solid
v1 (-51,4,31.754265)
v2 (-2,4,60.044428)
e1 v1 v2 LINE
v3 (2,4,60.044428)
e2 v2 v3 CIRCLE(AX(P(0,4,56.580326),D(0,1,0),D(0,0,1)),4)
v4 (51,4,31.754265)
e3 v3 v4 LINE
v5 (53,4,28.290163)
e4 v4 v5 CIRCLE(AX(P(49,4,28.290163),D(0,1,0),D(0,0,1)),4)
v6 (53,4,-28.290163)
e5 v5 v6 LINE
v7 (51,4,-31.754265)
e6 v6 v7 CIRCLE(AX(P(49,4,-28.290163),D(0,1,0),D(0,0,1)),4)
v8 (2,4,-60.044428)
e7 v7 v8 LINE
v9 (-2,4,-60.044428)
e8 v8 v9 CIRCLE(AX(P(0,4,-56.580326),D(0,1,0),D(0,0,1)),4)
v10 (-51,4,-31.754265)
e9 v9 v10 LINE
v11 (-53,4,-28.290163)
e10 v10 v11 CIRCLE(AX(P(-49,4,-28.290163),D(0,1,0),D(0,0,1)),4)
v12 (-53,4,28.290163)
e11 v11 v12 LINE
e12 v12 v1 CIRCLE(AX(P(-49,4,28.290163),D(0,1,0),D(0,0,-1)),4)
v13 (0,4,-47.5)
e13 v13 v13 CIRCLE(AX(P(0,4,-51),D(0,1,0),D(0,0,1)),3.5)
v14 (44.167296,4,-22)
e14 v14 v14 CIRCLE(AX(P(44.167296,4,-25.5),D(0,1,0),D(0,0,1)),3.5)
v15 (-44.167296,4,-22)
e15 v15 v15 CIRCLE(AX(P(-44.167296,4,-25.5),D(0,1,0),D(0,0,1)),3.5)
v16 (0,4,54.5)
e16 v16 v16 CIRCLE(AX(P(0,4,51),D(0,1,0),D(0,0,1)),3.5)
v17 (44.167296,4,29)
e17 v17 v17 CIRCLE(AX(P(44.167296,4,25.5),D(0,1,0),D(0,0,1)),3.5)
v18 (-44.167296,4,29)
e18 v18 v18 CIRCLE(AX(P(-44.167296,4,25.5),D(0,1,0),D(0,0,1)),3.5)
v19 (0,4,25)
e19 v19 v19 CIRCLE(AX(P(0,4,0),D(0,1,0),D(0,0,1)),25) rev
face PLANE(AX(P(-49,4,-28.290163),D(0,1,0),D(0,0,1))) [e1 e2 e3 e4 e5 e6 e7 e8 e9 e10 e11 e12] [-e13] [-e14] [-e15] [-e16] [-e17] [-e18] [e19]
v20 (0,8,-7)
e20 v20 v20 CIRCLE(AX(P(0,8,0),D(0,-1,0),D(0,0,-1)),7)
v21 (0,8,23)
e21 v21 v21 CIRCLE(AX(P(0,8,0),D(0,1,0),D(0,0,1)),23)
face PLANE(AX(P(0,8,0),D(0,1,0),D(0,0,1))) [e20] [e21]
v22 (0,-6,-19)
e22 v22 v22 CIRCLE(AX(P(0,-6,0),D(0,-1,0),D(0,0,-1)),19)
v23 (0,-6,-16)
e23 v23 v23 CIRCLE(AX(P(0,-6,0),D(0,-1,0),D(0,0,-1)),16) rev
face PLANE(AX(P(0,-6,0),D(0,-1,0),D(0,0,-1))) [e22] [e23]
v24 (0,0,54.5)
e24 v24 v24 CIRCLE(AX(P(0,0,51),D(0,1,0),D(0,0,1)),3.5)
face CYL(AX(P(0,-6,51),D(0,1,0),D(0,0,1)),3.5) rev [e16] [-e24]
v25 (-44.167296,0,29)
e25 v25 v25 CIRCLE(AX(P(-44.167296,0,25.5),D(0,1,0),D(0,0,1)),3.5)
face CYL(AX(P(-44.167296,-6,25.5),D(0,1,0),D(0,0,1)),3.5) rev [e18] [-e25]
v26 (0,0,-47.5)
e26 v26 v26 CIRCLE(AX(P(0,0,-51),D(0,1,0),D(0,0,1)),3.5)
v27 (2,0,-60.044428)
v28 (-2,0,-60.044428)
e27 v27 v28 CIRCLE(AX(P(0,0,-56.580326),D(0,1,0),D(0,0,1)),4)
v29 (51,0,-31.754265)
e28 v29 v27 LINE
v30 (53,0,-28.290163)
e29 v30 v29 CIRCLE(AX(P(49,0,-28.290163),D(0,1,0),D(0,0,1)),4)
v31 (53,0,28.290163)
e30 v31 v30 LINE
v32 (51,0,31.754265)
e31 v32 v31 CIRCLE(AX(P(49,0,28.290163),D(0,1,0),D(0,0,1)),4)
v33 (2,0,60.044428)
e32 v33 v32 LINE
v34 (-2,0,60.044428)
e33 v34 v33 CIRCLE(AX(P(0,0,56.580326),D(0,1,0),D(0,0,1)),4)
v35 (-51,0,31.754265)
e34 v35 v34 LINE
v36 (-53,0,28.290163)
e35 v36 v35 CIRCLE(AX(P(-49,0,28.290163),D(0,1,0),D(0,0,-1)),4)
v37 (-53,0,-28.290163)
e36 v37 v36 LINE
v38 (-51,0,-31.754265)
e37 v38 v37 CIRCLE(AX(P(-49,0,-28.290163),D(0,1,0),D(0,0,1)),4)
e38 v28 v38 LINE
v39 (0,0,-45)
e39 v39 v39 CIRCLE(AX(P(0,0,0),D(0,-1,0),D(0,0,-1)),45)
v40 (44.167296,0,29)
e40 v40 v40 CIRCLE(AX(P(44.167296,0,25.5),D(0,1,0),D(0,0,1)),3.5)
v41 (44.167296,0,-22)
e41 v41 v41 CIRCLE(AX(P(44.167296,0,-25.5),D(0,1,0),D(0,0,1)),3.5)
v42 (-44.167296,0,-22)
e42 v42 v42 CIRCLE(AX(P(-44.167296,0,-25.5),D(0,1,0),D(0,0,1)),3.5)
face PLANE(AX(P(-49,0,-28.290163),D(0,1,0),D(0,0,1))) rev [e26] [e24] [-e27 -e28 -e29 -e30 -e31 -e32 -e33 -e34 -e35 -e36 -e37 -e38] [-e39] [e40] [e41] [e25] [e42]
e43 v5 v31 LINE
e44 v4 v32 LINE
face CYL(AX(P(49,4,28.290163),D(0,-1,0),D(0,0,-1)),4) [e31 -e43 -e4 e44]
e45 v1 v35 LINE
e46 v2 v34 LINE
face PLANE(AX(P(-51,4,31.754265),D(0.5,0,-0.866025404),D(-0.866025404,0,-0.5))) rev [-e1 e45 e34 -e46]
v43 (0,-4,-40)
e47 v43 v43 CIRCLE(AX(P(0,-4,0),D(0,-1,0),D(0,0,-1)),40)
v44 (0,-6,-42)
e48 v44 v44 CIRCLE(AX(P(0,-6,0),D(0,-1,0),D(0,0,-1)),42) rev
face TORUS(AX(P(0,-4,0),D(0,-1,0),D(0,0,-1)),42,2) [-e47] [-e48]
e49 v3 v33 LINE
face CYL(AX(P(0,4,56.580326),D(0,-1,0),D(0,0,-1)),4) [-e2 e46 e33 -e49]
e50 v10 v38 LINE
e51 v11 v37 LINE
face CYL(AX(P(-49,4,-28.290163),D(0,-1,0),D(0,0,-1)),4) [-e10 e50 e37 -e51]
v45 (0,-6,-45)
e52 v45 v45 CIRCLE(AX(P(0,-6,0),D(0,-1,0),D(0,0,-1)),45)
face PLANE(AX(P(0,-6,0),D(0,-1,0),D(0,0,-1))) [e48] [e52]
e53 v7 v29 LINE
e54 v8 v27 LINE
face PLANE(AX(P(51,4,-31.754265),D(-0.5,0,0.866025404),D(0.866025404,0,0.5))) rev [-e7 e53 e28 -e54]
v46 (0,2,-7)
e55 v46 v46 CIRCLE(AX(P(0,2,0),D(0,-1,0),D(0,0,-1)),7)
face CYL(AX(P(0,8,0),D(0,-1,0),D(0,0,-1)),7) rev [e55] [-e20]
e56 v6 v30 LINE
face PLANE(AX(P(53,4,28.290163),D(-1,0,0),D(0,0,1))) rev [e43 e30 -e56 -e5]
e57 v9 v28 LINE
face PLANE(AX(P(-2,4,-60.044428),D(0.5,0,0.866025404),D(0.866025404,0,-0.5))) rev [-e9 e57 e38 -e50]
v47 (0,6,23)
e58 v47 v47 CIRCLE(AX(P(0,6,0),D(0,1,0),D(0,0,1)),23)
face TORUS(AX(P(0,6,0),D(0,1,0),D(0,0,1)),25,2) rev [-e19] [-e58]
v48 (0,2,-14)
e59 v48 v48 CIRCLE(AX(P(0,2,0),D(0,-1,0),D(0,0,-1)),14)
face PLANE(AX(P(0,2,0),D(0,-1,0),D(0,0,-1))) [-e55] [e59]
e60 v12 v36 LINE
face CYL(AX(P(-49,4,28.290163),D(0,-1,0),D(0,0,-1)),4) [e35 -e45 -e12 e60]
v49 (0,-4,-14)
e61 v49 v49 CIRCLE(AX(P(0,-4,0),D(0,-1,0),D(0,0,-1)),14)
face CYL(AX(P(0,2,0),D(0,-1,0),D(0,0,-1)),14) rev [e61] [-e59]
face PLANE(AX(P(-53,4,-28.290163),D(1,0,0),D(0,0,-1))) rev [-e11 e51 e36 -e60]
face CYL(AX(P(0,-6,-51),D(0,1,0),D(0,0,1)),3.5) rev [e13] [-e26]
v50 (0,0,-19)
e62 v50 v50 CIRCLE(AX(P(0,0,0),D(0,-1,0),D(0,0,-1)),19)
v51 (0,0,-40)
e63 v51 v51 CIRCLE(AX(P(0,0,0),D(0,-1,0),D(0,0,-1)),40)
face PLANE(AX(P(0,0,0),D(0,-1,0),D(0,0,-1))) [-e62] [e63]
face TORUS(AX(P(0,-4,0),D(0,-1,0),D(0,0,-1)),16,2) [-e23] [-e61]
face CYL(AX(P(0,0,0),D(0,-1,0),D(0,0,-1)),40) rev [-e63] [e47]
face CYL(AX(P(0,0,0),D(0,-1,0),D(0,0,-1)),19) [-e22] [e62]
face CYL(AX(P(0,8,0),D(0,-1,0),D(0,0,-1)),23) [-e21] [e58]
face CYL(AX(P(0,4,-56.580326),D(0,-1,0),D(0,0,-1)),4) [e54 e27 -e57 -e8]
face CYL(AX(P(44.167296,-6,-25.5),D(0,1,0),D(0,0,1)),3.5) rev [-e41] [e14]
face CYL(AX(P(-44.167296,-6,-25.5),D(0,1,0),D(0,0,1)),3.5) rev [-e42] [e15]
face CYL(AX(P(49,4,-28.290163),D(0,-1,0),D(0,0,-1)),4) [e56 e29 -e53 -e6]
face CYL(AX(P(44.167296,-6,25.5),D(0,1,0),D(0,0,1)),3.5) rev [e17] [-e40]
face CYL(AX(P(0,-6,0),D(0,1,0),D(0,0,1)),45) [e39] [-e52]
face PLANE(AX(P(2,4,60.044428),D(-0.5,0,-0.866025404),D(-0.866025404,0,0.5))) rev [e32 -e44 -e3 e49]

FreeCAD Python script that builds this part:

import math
import FreeCAD as App
import Part
import Sketcher
Q = App.Units.Quantity


def edges_at(feature, points):
    """Names of the edges that pass closest to the given points."""
    edges = feature.Shape.Edges
    near = lambda p: min(range(len(edges)), key=lambda i: edges[i].distToShape(Part.Vertex(*p))[0])
    return sorted({f"Edge{near(p) + 1}" for p in points})

doc = App.newDocument("Part")
params = doc.addObject("Spreadsheet::Sheet", "Params")
for row, (alias, value) in enumerate([
    ("sketch1_radius", "4 mm"),
    ("pad1_length", "4 mm"),
    ("sketch2_diameter", "46 mm"),
    ("pad2_length", "4 mm"),
    ("sketch3_diameter", "90 mm"),
    ("pad3_length", "6 mm"),
    ("sketch4_diameter", "80 mm"),
    ("sketch4_diameter2", "38 mm"),
    ("pocket1_length", "6 mm"),
    ("sketch5_diameter", "28 mm"),
    ("pocket2_length", "8 mm"),
    ("sketch6_diameter", "14 mm"),
    ("fillet_radius", "2 mm"),
    ("sketch7_diameter", "7 mm"),
], start=1):
    params.set(f"A{row}", alias)
    params.set(f"B{row}", "=" + value)
    params.setAlias(f"B{row}", alias)

body = doc.addObject("PartDesign::Body", "Body")

# Sketch on XZ plane
sketch1 = body.newObject("Sketcher::SketchObject", "Sketch")
sketch1.AttachmentSupport = (doc.getObject("XZ_Plane"), [""])
sketch1.MapMode = "FlatFace"
sketch1.addGeometry(Part.LineSegment(App.Vector(-51, 31.754265, 0), App.Vector(-2, 60.044428, 0)), False)
sketch1.addGeometry(Part.ArcOfCircle(Part.Circle(App.Vector(0, 56.580326, 0), App.Vector(0, 0, 1), 4), math.radians(60), math.radians(120)), False)
sketch1.addGeometry(Part.LineSegment(App.Vector(2, 60.044428, 0), App.Vector(51, 31.754265, 0)), False)
sketch1.addGeometry(Part.ArcOfCircle(Part.Circle(App.Vector(49, 28.290163, 0), App.Vector(0, 0, 1), 4), math.radians(0), math.radians(60)), False)
sketch1.addGeometry(Part.LineSegment(App.Vector(53, 28.290163, 0), App.Vector(53, -28.290163, 0)), False)
sketch1.addGeometry(Part.ArcOfCircle(Part.Circle(App.Vector(49, -28.290163, 0), App.Vector(0, 0, 1), 4), math.radians(-60), math.radians(0)), False)
sketch1.addGeometry(Part.LineSegment(App.Vector(51, -31.754265, 0), App.Vector(2, -60.044428, 0)), False)
sketch1.addGeometry(Part.ArcOfCircle(Part.Circle(App.Vector(0, -56.580326, 0), App.Vector(0, 0, 1), 4), math.radians(-120), math.radians(-60)), False)
sketch1.addGeometry(Part.LineSegment(App.Vector(-2, -60.044428, 0), App.Vector(-51, -31.754265, 0)), False)
sketch1.addGeometry(Part.ArcOfCircle(Part.Circle(App.Vector(-49, -28.290163, 0), App.Vector(0, 0, 1), 4), math.radians(180), math.radians(240)), False)
sketch1.addGeometry(Part.LineSegment(App.Vector(-53, -28.290163, 0), App.Vector(-53, 28.290163, 0)), False)
sketch1.addGeometry(Part.ArcOfCircle(Part.Circle(App.Vector(-49, 28.290163, 0), App.Vector(0, 0, 1), 4), math.radians(120), math.radians(180)), False)
sketch1.addConstraint(Sketcher.Constraint("Tangent", 0, 2, 1, 2))
sketch1.addConstraint(Sketcher.Constraint("Tangent", 1, 1, 2, 1))
sketch1.addConstraint(Sketcher.Constraint("Tangent", 2, 2, 3, 2))
sketch1.addConstraint(Sketcher.Constraint("Tangent", 3, 1, 4, 1))
sketch1.addConstraint(Sketcher.Constraint("Tangent", 4, 2, 5, 2))
sketch1.addConstraint(Sketcher.Constraint("Tangent", 5, 1, 6, 1))
sketch1.addConstraint(Sketcher.Constraint("Tangent", 6, 2, 7, 2))
sketch1.addConstraint(Sketcher.Constraint("Tangent", 7, 1, 8, 1))
sketch1.addConstraint(Sketcher.Constraint("Tangent", 8, 2, 9, 2))
sketch1.addConstraint(Sketcher.Constraint("Tangent", 9, 1, 10, 1))
sketch1.addConstraint(Sketcher.Constraint("Tangent", 10, 2, 11, 2))
sketch1.addConstraint(Sketcher.Constraint("Tangent", 11, 1, 0, 1))
sketch1.addConstraint(Sketcher.Constraint("Vertical", 4))
sketch1.addConstraint(Sketcher.Constraint("Vertical", 10))
sketch1.addConstraint(Sketcher.Constraint("Equal", 1, 3))
sketch1.addConstraint(Sketcher.Constraint("Equal", 3, 5))
sketch1.addConstraint(Sketcher.Constraint("Equal", 5, 7))
sketch1.addConstraint(Sketcher.Constraint("Equal", 7, 9))
sketch1.addConstraint(Sketcher.Constraint("Equal", 9, 11))
sketch1.addConstraint(Sketcher.Constraint("Symmetric", 1, 3, 7, 3, -1, 1))
sketch1.addConstraint(Sketcher.Constraint("Symmetric", 3, 3, 9, 3, -1, 1))
sketch1.addConstraint(Sketcher.Constraint("Symmetric", 0, 2, 1, 1, -2))
sketch1.addConstraint(Sketcher.Constraint("Parallel", 0, 6))
sketch1.addConstraint(Sketcher.Constraint("Radius", 1, 4.0))
sketch1.addConstraint(Sketcher.Constraint("Angle", 0, Q("30 deg")))
sketch1.addConstraint(Sketcher.Constraint("DistanceX", -1, 1, 3, 3, 49.0))
sketch1.addConstraint(Sketcher.Constraint("DistanceY", 4, 2, 4, 1, 56.580326))
sketch1.setExpression("Constraints[23]", "Params.sketch1_radius")
pad1 = body.newObject("PartDesign::Pad", "Pad")
pad1.Profile = sketch1
pad1.setExpression("Length", "Params.pad1_length")
pad1.Reversed = True

# Sketch on XZ plane
sketch2 = body.newObject("Sketcher::SketchObject", "Sketch001")
sketch2.AttachmentSupport = (doc.getObject("XZ_Plane"), [""])
sketch2.MapMode = "FlatFace"
sketch2.AttachmentOffset = App.Placement(App.Vector(0, 0, -4), App.Rotation())
sketch2.addGeometry(Part.Circle(App.Vector(0, 0, 0), App.Vector(0, 0, 1), 23), False)
sketch2.addConstraint(Sketcher.Constraint("Coincident", 0, 3, -1, 1))
sketch2.addConstraint(Sketcher.Constraint("Diameter", 0, 46.0))
sketch2.setExpression("Constraints[1]", "Params.sketch2_diameter")
pad2 = body.newObject("PartDesign::Pad", "Pad001")
pad2.Profile = sketch2
pad2.setExpression("Length", "Params.pad2_length")
pad2.Reversed = True

# Sketch on XZ plane
sketch3 = body.newObject("Sketcher::SketchObject", "Sketch002")
sketch3.AttachmentSupport = (doc.getObject("XZ_Plane"), [""])
sketch3.MapMode = "FlatFace"
sketch3.addGeometry(Part.Circle(App.Vector(0, 0, 0), App.Vector(0, 0, 1), 45), False)
sketch3.addConstraint(Sketcher.Constraint("Coincident", 0, 3, -1, 1))
sketch3.addConstraint(Sketcher.Constraint("Diameter", 0, 90.0))
sketch3.setExpression("Constraints[1]", "Params.sketch3_diameter")
pad3 = body.newObject("PartDesign::Pad", "Pad002")
pad3.Profile = sketch3
pad3.setExpression("Length", "Params.pad3_length")

# Sketch on XZ plane
sketch4 = body.newObject("Sketcher::SketchObject", "Sketch003")
sketch4.AttachmentSupport = (doc.getObject("XZ_Plane"), [""])
sketch4.MapMode = "FlatFace"
sketch4.AttachmentOffset = App.Placement(App.Vector(0, 0, 6), App.Rotation())
sketch4.addGeometry(Part.Circle(App.Vector(0, 0, 0), App.Vector(0, 0, 1), 40), False)
sketch4.addGeometry(Part.Circle(App.Vector(0, 0, 0), App.Vector(0, 0, 1), 19), False)
sketch4.addConstraint(Sketcher.Constraint("Coincident", 0, 3, -1, 1))
sketch4.addConstraint(Sketcher.Constraint("Coincident", 1, 3, -1, 1))
sketch4.addConstraint(Sketcher.Constraint("Diameter", 0, 80.0))
sketch4.addConstraint(Sketcher.Constraint("Diameter", 1, 38.0))
sketch4.setExpression("Constraints[2]", "Params.sketch4_diameter")
sketch4.setExpression("Constraints[3]", "Params.sketch4_diameter2")
pocket1 = body.newObject("PartDesign::Pocket", "Pocket")
pocket1.Profile = sketch4
pocket1.setExpression("Length", "Params.pocket1_length")

# Sketch on XZ plane
sketch5 = body.newObject("Sketcher::SketchObject", "Sketch004")
sketch5.AttachmentSupport = (doc.getObject("XZ_Plane"), [""])
sketch5.MapMode = "FlatFace"
sketch5.AttachmentOffset = App.Placement(App.Vector(0, 0, 6), App.Rotation())
sketch5.addGeometry(Part.Circle(App.Vector(0, 0, 0), App.Vector(0, 0, 1), 14), False)
sketch5.addConstraint(Sketcher.Constraint("Coincident", 0, 3, -1, 1))
sketch5.addConstraint(Sketcher.Constraint("Diameter", 0, 28.0))
sketch5.setExpression("Constraints[1]", "Params.sketch5_diameter")
pocket2 = body.newObject("PartDesign::Pocket", "Pocket001")
pocket2.Profile = sketch5
pocket2.setExpression("Length", "Params.pocket2_length")

# Sketch on XZ plane
sketch6 = body.newObject("Sketcher::SketchObject", "Sketch005")
sketch6.AttachmentSupport = (doc.getObject("XZ_Plane"), [""])
sketch6.MapMode = "FlatFace"
sketch6.AttachmentOffset = App.Placement(App.Vector(0, 0, -2), App.Rotation())
sketch6.addGeometry(Part.Circle(App.Vector(0, 0, 0), App.Vector(0, 0, 1), 7), False)
sketch6.addConstraint(Sketcher.Constraint("Coincident", 0, 3, -1, 1))
sketch6.addConstraint(Sketcher.Constraint("Diameter", 0, 14.0))
sketch6.setExpression("Constraints[1]", "Params.sketch6_diameter")
pocket3 = body.newObject("PartDesign::Pocket", "Pocket002")
pocket3.Profile = sketch6
pocket3.Type = "ThroughAll"
doc.recompute()

fillet = body.newObject("PartDesign::Fillet", "Fillet")
fillet.Base = (pocket3, edges_at(pocket3, [(0, 4, -23), (0, -6, 40), (0, -6, 14)]))
fillet.setExpression("Radius", "Params.fillet_radius")

# Sketch on XZ plane
sketch7 = body.newObject("Sketcher::SketchObject", "Sketch006")
sketch7.AttachmentSupport = (doc.getObject("XZ_Plane"), [""])
sketch7.MapMode = "FlatFace"
sketch7.AttachmentOffset = App.Placement(App.Vector(0, 0, -4), App.Rotation())
sketch7.addGeometry(Part.Circle(App.Vector(0, -51, 0), App.Vector(0, 0, 1), 3.5), False)
sketch7.addGeometry(Part.Circle(App.Vector(44.167296, -25.5, 0), App.Vector(0, 0, 1), 3.5), False)
sketch7.addGeometry(Part.Circle(App.Vector(44.167296, 25.5, 0), App.Vector(0, 0, 1), 3.5), False)
sketch7.addGeometry(Part.Circle(App.Vector(0, 51, 0), App.Vector(0, 0, 1), 3.5), False)
sketch7.addGeometry(Part.Circle(App.Vector(-44.167296, 25.5, 0), App.Vector(0, 0, 1), 3.5), False)
sketch7.addGeometry(Part.Circle(App.Vector(-44.167296, -25.5, 0), App.Vector(0, 0, 1), 3.5), False)
sketch7.addConstraint(Sketcher.Constraint("Equal", 0, 1))
sketch7.addConstraint(Sketcher.Constraint("Equal", 1, 2))
sketch7.addConstraint(Sketcher.Constraint("Equal", 2, 3))
sketch7.addConstraint(Sketcher.Constraint("Equal", 3, 4))
sketch7.addConstraint(Sketcher.Constraint("Equal", 4, 5))
sketch7.addConstraint(Sketcher.Constraint("Symmetric", 0, 3, 3, 3, -1, 1))
sketch7.addConstraint(Sketcher.Constraint("Symmetric", 1, 3, 4, 3, -1, 1))
sketch7.addConstraint(Sketcher.Constraint("Symmetric", 2, 3, 5, 3, -1, 1))
sketch7.addConstraint(Sketcher.Constraint("Symmetric", 2, 3, 4, 3, -2))
sketch7.addConstraint(Sketcher.Constraint("PointOnObject", 0, 3, -2))
sketch7.addConstraint(Sketcher.Constraint("Diameter", 0, 7.0))
sketch7.addConstraint(Sketcher.Constraint("DistanceY", 0, 3, -1, 1, 51.0))
sketch7.addConstraint(Sketcher.Constraint("DistanceY", 1, 3, 2, 3, 51.0))
sketch7.addConstraint(Sketcher.Constraint("DistanceX", 4, 3, 2, 3, 88.334591))
sketch7.setExpression("Constraints[10]", "Params.sketch7_diameter")
pocket4 = body.newObject("PartDesign::Pocket", "Pocket003")
pocket4.Profile = sketch7
pocket4.Type = "ThroughAll"
pocket4.Reversed = True

doc.recompute()
